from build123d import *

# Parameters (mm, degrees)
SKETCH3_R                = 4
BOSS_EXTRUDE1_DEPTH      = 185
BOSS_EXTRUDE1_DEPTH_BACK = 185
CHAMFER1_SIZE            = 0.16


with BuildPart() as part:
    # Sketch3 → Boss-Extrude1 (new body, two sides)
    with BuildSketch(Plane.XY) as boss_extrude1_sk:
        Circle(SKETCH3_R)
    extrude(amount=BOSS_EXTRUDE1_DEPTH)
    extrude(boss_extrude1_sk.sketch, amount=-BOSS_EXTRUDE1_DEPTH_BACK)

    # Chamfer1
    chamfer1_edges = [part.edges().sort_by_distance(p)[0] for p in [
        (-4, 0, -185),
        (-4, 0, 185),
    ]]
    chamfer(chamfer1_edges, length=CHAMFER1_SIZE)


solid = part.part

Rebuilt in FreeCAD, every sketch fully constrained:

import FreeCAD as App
import Part
import Sketcher
from FreeCAD import Vector


def edges_at(feature, points):
    """Names of the edges that pass closest to the given points."""
    edges = feature.Shape.Edges
    near = lambda p: min(range(len(edges)), key=lambda i: edges[i].distToShape(Part.Vertex(*p))[0])
    return sorted({f"Edge{near(p) + 1}" for p in points})

doc = App.newDocument("Part")
params = doc.addObject("Spreadsheet::Sheet", "Params")
for row, (alias, value) in enumerate([
    ("sketch1_diameter", "8 mm"),
    ("pad1_length", "185 mm"),
    ("pad1_length2", "185 mm"),
    ("chamfer_size", "0.16 mm"),
], start=1):
    params.set(f"A{row}", alias)
    params.set(f"B{row}", "=" + value)
    params.setAlias(f"B{row}", alias)

body = doc.addObject("PartDesign::Body", "Body")

# Sketch on XY plane
sketch1 = body.newObject("Sketcher::SketchObject", "Sketch")
sketch1.AttachmentSupport = (doc.getObject("XY_Plane"), [""])
sketch1.MapMode = "FlatFace"
sketch1.addGeometry(Part.Circle(Vector(0, 0, 0), Vector(0, 0, 1), 4), False)
sketch1.addConstraint([
    Sketcher.Constraint("Coincident", 0, 3, -1, 1),
    Sketcher.Constraint("Diameter", 0, 8.0),
])
sketch1.setExpression("Constraints[1]", "Params.sketch1_diameter")
pad1 = body.newObject("PartDesign::Pad", "Pad")
pad1.Profile = sketch1
pad1.Type = "TwoLengths"
pad1.setExpression("Length", "Params.pad1_length")
pad1.setExpression("Length2", "Params.pad1_length2")
doc.recompute()

chamfer = body.newObject("PartDesign::Chamfer", "Chamfer")
chamfer.Base = (pad1, edges_at(pad1, [(-4, 0, -185), (-4, 0, 185)]))
chamfer.setExpression("Size", "Params.chamfer_size")

doc.recompute()
